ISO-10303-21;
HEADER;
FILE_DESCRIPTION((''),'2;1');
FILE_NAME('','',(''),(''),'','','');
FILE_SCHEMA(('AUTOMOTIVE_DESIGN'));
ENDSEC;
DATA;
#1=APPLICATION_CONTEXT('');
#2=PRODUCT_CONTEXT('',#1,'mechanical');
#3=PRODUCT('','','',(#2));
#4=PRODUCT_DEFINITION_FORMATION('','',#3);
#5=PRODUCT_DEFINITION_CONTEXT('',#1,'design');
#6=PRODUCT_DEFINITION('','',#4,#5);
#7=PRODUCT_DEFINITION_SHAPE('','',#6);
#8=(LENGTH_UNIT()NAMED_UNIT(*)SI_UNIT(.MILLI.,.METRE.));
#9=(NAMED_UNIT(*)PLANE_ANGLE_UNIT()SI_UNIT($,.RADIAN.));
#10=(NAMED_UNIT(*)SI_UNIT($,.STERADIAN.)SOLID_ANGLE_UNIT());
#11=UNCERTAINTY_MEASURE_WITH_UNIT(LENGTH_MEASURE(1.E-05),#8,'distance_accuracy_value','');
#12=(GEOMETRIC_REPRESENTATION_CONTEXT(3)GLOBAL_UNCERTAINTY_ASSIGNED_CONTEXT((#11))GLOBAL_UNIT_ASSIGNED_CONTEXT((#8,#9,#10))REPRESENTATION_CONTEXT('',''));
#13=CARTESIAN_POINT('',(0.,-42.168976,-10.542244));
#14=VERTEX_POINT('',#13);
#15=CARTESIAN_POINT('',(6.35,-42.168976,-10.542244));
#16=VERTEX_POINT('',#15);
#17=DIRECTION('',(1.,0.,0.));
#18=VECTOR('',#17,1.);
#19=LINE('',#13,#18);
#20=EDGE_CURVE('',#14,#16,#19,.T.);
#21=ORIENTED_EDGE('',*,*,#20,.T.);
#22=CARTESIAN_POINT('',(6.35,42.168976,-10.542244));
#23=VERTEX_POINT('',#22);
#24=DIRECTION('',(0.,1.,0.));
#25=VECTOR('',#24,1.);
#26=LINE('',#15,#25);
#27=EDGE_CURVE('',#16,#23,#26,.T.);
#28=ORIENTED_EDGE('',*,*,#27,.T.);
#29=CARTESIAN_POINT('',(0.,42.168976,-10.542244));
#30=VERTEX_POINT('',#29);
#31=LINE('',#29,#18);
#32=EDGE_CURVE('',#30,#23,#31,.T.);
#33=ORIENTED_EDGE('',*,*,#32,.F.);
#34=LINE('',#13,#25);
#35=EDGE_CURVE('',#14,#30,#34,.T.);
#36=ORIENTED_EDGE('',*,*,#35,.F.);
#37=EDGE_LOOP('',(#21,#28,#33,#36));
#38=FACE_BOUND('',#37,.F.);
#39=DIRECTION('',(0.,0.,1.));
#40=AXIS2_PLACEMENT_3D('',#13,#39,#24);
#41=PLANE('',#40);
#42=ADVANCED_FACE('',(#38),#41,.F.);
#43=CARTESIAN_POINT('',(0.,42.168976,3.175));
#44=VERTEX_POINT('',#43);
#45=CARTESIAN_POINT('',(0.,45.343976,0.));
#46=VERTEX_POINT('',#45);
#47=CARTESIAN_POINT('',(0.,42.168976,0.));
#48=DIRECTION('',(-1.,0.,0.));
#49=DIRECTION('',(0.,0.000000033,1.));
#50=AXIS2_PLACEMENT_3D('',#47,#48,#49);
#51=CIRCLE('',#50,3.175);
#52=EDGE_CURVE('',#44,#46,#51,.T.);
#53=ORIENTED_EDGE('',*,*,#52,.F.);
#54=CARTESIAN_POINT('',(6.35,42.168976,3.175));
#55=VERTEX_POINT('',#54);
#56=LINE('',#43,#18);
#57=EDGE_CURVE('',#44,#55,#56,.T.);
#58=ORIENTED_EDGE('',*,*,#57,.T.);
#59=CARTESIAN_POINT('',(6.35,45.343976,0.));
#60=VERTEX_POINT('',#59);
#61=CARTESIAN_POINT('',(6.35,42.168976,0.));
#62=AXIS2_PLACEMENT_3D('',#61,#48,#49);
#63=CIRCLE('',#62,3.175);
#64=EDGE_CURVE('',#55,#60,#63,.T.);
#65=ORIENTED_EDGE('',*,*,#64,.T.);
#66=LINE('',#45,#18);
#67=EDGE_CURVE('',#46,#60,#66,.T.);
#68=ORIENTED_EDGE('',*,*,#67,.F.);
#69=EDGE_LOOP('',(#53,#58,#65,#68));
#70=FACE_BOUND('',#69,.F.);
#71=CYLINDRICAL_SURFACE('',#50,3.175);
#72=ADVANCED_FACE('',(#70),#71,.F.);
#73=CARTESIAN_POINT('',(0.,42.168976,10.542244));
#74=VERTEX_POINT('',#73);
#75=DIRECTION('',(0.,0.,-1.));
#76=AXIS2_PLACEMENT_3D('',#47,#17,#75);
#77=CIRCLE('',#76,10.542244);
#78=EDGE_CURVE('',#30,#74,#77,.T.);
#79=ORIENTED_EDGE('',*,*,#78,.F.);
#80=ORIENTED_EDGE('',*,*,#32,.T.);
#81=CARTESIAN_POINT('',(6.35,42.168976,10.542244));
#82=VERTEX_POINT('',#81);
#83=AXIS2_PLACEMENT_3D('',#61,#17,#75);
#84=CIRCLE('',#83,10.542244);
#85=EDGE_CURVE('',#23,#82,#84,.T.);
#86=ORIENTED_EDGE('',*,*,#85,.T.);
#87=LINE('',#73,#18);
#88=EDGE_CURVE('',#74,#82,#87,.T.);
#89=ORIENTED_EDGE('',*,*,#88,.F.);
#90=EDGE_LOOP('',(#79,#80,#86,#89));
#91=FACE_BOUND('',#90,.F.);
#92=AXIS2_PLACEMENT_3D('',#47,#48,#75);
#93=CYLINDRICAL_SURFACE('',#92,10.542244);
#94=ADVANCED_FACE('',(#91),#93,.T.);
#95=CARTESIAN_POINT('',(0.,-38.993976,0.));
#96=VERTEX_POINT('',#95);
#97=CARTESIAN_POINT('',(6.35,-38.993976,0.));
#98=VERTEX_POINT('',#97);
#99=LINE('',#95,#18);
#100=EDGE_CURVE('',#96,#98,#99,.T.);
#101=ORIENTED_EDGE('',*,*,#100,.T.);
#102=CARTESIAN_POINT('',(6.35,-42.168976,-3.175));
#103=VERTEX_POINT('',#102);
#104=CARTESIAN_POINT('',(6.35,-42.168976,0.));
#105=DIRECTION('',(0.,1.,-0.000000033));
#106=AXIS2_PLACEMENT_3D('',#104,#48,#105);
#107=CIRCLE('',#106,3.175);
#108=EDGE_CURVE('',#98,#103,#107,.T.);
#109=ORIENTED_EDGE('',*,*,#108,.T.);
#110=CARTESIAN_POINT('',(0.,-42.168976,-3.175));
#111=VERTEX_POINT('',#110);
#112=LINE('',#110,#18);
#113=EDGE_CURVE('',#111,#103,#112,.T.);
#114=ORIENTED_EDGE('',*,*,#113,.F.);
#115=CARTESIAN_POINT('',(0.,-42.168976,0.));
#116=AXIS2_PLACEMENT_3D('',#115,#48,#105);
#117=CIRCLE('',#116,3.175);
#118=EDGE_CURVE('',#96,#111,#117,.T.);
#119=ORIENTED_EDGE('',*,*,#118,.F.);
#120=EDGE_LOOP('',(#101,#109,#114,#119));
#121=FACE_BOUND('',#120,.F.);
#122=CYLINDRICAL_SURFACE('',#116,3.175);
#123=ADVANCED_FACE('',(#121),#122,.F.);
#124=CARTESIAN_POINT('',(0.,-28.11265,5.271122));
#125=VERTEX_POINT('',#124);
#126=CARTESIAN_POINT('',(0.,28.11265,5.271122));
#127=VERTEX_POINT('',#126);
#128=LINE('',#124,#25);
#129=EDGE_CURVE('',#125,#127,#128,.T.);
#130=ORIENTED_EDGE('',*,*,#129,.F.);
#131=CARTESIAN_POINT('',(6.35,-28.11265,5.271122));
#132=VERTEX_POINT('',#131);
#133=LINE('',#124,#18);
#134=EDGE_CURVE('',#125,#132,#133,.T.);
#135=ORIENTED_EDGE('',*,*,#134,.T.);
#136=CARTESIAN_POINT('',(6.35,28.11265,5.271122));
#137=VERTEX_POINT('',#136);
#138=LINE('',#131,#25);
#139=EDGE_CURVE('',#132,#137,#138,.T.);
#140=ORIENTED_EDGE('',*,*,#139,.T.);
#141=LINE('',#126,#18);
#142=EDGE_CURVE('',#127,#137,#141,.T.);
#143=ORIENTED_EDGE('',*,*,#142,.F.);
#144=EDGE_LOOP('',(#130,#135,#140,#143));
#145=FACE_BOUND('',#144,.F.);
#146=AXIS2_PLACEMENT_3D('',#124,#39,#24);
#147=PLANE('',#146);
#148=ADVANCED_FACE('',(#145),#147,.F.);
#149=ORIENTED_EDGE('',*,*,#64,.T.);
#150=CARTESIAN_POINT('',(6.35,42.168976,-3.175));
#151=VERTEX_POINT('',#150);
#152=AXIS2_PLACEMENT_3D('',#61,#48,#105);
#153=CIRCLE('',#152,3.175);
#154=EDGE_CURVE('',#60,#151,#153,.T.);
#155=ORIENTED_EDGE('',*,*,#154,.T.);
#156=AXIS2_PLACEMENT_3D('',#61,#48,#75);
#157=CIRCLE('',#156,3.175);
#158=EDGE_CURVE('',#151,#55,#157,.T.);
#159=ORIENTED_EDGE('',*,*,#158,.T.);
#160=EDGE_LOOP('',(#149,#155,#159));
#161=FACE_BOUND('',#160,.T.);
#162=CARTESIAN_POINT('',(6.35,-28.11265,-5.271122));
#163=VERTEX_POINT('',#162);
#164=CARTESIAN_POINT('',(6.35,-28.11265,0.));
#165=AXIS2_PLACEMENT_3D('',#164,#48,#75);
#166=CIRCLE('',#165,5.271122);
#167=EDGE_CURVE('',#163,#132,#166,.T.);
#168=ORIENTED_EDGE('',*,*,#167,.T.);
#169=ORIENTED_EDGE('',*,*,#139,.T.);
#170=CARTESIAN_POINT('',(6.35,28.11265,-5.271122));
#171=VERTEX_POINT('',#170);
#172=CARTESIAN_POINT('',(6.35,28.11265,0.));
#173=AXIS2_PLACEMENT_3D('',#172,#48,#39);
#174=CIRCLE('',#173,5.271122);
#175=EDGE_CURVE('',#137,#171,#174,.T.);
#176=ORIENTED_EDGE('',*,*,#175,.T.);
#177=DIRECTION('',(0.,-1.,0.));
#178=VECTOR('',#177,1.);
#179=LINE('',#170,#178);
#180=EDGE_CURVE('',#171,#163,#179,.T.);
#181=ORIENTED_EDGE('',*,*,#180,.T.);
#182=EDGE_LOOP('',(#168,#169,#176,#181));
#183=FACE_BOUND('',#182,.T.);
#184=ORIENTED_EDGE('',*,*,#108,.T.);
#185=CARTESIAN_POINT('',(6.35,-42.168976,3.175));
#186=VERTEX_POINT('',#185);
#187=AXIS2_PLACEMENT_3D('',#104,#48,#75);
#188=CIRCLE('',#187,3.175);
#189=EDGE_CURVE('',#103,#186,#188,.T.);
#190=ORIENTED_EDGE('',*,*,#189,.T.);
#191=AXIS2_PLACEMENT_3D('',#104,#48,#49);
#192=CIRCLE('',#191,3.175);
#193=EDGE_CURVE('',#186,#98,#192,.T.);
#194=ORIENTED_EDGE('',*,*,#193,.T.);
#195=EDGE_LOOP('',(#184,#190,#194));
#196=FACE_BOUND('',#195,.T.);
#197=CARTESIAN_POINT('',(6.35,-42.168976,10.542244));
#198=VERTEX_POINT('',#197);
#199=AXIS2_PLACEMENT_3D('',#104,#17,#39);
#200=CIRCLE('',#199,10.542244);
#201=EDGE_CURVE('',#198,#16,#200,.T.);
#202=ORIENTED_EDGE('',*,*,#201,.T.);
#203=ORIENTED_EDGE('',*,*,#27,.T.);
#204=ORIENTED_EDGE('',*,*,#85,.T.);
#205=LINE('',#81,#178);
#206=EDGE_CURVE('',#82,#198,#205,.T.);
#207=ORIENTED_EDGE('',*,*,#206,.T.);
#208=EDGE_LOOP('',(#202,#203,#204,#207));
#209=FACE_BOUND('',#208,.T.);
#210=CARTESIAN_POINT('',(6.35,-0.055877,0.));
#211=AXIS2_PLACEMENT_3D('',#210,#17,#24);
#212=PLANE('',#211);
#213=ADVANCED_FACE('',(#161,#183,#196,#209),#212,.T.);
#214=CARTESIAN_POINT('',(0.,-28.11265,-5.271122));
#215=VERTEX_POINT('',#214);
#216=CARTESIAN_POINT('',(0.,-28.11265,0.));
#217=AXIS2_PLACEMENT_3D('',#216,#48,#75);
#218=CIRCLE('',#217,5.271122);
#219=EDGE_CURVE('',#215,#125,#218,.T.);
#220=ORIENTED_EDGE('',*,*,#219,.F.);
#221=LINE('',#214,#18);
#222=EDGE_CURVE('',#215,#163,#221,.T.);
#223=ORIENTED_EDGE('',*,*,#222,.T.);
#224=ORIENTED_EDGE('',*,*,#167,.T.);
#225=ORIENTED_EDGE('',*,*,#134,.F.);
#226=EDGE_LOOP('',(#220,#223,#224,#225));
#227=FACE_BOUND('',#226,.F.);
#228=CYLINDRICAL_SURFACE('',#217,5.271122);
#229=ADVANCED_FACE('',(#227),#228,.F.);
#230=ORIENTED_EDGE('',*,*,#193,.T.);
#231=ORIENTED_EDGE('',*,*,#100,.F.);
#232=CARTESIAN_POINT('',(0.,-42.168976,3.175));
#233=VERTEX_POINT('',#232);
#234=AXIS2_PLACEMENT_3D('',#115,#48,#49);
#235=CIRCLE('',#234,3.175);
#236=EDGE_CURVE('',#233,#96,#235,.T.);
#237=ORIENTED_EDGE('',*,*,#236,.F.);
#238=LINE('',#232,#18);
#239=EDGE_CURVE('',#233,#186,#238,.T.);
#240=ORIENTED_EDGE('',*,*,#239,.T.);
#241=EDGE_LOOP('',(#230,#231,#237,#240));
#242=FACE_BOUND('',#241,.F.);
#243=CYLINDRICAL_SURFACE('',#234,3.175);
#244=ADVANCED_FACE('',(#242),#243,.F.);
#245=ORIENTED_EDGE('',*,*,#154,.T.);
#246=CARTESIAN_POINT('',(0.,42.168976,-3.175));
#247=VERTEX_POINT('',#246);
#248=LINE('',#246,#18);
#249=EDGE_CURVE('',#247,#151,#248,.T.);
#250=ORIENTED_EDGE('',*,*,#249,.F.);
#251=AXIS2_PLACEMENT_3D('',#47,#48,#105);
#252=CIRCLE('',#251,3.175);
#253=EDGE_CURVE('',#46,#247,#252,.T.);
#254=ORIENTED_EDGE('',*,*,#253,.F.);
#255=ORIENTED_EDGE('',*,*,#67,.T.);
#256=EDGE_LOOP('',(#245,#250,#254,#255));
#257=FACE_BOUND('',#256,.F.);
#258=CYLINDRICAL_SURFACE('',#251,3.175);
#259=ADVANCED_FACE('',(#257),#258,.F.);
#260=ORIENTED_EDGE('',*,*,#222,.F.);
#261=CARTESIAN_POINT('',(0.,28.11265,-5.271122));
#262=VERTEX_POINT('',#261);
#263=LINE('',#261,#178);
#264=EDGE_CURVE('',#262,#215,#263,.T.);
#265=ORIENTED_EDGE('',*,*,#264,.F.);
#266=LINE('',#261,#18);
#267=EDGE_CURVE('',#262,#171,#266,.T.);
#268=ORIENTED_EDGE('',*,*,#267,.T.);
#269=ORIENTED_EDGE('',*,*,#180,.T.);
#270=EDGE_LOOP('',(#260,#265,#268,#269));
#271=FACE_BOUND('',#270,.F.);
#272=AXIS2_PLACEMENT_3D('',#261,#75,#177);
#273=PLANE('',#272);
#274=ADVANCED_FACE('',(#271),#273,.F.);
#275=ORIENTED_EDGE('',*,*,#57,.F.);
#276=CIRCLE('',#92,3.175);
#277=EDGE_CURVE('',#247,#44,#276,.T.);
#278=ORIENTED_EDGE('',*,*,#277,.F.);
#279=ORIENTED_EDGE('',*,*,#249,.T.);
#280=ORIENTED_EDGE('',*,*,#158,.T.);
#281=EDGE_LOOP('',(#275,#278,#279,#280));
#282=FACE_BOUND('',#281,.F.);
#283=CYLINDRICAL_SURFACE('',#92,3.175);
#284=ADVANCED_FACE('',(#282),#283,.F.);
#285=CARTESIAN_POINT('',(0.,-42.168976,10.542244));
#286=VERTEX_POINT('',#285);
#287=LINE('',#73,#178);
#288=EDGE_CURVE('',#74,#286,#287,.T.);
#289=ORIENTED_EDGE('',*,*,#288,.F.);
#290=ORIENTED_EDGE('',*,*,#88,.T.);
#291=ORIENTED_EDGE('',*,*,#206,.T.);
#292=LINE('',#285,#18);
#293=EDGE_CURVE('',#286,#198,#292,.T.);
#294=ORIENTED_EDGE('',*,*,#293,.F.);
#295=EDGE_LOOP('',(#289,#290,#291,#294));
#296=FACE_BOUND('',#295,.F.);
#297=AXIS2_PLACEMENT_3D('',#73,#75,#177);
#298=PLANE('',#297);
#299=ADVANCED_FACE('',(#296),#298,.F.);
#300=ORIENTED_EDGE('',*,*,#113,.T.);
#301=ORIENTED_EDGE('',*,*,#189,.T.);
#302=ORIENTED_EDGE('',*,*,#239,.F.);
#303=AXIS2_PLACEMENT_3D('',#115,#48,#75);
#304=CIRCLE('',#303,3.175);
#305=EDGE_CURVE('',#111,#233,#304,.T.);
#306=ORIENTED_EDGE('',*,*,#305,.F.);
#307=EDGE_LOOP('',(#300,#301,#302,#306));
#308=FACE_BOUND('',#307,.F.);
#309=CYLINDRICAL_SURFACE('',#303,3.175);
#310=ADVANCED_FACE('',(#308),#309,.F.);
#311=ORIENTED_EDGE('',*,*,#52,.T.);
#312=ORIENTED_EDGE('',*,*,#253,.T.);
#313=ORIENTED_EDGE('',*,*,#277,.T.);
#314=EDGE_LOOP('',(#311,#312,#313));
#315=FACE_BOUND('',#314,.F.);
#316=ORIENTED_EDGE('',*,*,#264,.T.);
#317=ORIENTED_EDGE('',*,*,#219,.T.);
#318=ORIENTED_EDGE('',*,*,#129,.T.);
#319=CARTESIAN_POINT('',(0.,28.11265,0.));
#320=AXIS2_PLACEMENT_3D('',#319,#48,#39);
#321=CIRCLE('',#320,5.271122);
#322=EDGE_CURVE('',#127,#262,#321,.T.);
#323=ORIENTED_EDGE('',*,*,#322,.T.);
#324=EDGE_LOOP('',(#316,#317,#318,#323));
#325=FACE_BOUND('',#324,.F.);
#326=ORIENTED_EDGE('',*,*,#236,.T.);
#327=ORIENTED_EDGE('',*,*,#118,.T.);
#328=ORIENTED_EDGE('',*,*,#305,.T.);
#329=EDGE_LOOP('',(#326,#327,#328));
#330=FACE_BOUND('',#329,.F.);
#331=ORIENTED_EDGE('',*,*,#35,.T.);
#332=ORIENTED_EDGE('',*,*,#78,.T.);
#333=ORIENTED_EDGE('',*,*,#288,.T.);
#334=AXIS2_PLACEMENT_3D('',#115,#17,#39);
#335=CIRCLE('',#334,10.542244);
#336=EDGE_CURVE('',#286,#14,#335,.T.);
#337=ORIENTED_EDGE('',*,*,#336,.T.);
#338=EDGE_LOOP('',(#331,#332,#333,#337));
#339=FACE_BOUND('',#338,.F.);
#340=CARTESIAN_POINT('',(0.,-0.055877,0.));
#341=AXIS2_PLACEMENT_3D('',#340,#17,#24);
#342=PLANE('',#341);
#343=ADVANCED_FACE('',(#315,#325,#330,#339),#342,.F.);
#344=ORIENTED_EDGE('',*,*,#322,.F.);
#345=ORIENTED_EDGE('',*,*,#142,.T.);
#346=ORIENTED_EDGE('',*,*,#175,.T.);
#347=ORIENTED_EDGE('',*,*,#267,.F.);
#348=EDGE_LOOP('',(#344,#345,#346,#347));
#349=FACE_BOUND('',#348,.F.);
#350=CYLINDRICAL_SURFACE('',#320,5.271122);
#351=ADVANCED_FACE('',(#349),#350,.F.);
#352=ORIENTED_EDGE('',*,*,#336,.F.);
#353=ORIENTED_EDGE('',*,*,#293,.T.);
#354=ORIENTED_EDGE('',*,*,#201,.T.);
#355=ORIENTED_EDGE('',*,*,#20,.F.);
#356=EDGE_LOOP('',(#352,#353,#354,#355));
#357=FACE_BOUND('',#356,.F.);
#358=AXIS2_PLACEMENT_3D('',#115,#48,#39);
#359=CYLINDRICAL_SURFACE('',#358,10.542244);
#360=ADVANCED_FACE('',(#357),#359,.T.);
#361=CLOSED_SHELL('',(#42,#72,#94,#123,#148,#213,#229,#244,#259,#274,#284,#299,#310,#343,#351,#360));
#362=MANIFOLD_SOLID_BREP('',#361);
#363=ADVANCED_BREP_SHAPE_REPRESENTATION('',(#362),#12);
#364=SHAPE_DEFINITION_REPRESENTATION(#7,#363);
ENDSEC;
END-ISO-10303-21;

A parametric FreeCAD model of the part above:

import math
import FreeCAD as App
import Part
import Sketcher
Q = App.Units.Quantity

doc = App.newDocument("Part")
body = doc.addObject("PartDesign::Body", "Body")

# Sketch on YZ plane
sketch1 = doc.addObject("Sketcher::SketchObject", "Sketch")
body.addObject(sketch1)
sketch1.AttachmentSupport = (doc.YZ_Plane, [""])
sketch1.MapMode = "FlatFace"
sketch1.addGeometry(Part.LineSegment(App.Vector(-42.2, -10.5, 0), App.Vector(42.2, -10.5, 0)), False)
sketch1.addGeometry(Part.ArcOfCircle(Part.Circle(App.Vector(42.2, 0, 0), App.Vector(0, 0, 1), 10.5), math.radians(-90), math.radians(90)), False)
sketch1.addGeometry(Part.LineSegment(App.Vector(42.2, 10.5, 0), App.Vector(-42.2, 10.5, 0)), False)
sketch1.addGeometry(Part.ArcOfCircle(Part.Circle(App.Vector(-42.2, 0, 0), App.Vector(0, 0, 1), 10.5), math.radians(90), math.radians(270)), False)
sketch1.addGeometry(Part.ArcOfCircle(Part.Circle(App.Vector(-42.2, 0, 0), App.Vector(0, 0, 1), 3.2), math.radians(0), math.radians(90)), False)
sketch1.addGeometry(Part.ArcOfCircle(Part.Circle(App.Vector(-42.2, 0, 0), App.Vector(0, 0, 1), 3.2), math.radians(-90), math.radians(0)), False)
sketch1.addGeometry(Part.ArcOfCircle(Part.Circle(App.Vector(-42.2, 0, 0), App.Vector(0, 0, 1), 3.2), math.radians(90), math.radians(270)), False)
sketch1.addGeometry(Part.ArcOfCircle(Part.Circle(App.Vector(42.2, 0, 0), App.Vector(0, 0, 1), 3.2), math.radians(90), math.radians(270)), False)
sketch1.addGeometry(Part.ArcOfCircle(Part.Circle(App.Vector(42.2, 0, 0), App.Vector(0, 0, 1), 3.2), math.radians(0), math.radians(90)), False)
sketch1.addGeometry(Part.ArcOfCircle(Part.Circle(App.Vector(42.2, 0, 0), App.Vector(0, 0, 1), 3.2), math.radians(-90), math.radians(0)), False)
sketch1.addGeometry(Part.LineSegment(App.Vector(-28.1, 5.3, 0), App.Vector(28.1, 5.3, 0)), False)
sketch1.addGeometry(Part.ArcOfCircle(Part.Circle(App.Vector(28.1, 0, 0), App.Vector(0, 0, 1), 5.3), math.radians(-90), math.radians(90)), False)
sketch1.addGeometry(Part.LineSegment(App.Vector(28.1, -5.3, 0), App.Vector(-28.1, -5.3, 0)), False)
sketch1.addGeometry(Part.ArcOfCircle(Part.Circle(App.Vector(-28.1, 0, 0), App.Vector(0, 0, 1), 5.3), math.radians(90), math.radians(270)), False)
sketch1.addConstraint(Sketcher.Constraint("Tangent", 0, 2, 1, 1))
sketch1.addConstraint(Sketcher.Constraint("Tangent", 1, 2, 2, 1))
sketch1.addConstraint(Sketcher.Constraint("Tangent", 2, 2, 3, 1))
sketch1.addConstraint(Sketcher.Constraint("Tangent", 3, 2, 0, 1))
sketch1.addConstraint(Sketcher.Constraint("Tangent", 4, 1, 5, 2))
sketch1.addConstraint(Sketcher.Constraint("Tangent", 5, 1, 6, 2))
sketch1.addConstraint(Sketcher.Constraint("Tangent", 6, 1, 4, 2))
sketch1.addConstraint(Sketcher.Constraint("Tangent", 7, 1, 8, 2))
sketch1.addConstraint(Sketcher.Constraint("Tangent", 8, 1, 9, 2))
sketch1.addConstraint(Sketcher.Constraint("Tangent", 9, 1, 7, 2))
sketch1.addConstraint(Sketcher.Constraint("Tangent", 10, 2, 11, 2))
sketch1.addConstraint(Sketcher.Constraint("Tangent", 11, 1, 12, 1))
sketch1.addConstraint(Sketcher.Constraint("Tangent", 12, 2, 13, 2))
sketch1.addConstraint(Sketcher.Constraint("Tangent", 13, 1, 10, 1))
sketch1.addConstraint(Sketcher.Constraint("Horizontal", 0))
sketch1.addConstraint(Sketcher.Constraint("Horizontal", 2))
sketch1.addConstraint(Sketcher.Constraint("Horizontal", 10))
sketch1.addConstraint(Sketcher.Constraint("Horizontal", 12))
sketch1.addConstraint(Sketcher.Constraint("Coincident", 4, 3, 3, 3))
sketch1.addConstraint(Sketcher.Constraint("Coincident", 7, 3, 1, 3))
sketch1.addConstraint(Sketcher.Constraint("Equal", 6, 7))
sketch1.addConstraint(Sketcher.Constraint("Symmetric", 1, 3, 3, 3, -1, 1))
sketch1.addConstraint(Sketcher.Constraint("Symmetric", 11, 3, 13, 3, -1, 1))
sketch1.addConstraint(Sketcher.Constraint("PointOnObject", 4, 1, -1))
sketch1.addConstraint(Sketcher.Constraint("PointOnObject", 8, 1, -1))
sketch1.addConstraint(Sketcher.Constraint("Vertical", 3, 2, 5, 1))
sketch1.addConstraint(Sketcher.Constraint("Vertical", 5, 1, 6, 1))
sketch1.addConstraint(Sketcher.Constraint("Vertical", 1, 2, 7, 1))
sketch1.addConstraint(Sketcher.Constraint("Vertical", 7, 1, 9, 1))
sketch1.addConstraint(Sketcher.Constraint("Radius", 4, Q("0.125 in")))
sketch1.addConstraint(Sketcher.Constraint("DistanceX", 10, 1, 10, 2, 56.2253))
sketch1.addConstraint(Sketcher.Constraint("Radius", 1, 10.542244))
sketch1.addConstraint(Sketcher.Constraint("Radius", 11, 5.271122))
sketch1.addConstraint(Sketcher.Constraint("DistanceX", 0, 1, 0, 2, 84.337952))
pad1 = doc.addObject("PartDesign::Pad", "Pad")
body.addObject(pad1)
pad1.Profile = sketch1
pad1.Length = Q("0.25 in")

doc.recompute()
